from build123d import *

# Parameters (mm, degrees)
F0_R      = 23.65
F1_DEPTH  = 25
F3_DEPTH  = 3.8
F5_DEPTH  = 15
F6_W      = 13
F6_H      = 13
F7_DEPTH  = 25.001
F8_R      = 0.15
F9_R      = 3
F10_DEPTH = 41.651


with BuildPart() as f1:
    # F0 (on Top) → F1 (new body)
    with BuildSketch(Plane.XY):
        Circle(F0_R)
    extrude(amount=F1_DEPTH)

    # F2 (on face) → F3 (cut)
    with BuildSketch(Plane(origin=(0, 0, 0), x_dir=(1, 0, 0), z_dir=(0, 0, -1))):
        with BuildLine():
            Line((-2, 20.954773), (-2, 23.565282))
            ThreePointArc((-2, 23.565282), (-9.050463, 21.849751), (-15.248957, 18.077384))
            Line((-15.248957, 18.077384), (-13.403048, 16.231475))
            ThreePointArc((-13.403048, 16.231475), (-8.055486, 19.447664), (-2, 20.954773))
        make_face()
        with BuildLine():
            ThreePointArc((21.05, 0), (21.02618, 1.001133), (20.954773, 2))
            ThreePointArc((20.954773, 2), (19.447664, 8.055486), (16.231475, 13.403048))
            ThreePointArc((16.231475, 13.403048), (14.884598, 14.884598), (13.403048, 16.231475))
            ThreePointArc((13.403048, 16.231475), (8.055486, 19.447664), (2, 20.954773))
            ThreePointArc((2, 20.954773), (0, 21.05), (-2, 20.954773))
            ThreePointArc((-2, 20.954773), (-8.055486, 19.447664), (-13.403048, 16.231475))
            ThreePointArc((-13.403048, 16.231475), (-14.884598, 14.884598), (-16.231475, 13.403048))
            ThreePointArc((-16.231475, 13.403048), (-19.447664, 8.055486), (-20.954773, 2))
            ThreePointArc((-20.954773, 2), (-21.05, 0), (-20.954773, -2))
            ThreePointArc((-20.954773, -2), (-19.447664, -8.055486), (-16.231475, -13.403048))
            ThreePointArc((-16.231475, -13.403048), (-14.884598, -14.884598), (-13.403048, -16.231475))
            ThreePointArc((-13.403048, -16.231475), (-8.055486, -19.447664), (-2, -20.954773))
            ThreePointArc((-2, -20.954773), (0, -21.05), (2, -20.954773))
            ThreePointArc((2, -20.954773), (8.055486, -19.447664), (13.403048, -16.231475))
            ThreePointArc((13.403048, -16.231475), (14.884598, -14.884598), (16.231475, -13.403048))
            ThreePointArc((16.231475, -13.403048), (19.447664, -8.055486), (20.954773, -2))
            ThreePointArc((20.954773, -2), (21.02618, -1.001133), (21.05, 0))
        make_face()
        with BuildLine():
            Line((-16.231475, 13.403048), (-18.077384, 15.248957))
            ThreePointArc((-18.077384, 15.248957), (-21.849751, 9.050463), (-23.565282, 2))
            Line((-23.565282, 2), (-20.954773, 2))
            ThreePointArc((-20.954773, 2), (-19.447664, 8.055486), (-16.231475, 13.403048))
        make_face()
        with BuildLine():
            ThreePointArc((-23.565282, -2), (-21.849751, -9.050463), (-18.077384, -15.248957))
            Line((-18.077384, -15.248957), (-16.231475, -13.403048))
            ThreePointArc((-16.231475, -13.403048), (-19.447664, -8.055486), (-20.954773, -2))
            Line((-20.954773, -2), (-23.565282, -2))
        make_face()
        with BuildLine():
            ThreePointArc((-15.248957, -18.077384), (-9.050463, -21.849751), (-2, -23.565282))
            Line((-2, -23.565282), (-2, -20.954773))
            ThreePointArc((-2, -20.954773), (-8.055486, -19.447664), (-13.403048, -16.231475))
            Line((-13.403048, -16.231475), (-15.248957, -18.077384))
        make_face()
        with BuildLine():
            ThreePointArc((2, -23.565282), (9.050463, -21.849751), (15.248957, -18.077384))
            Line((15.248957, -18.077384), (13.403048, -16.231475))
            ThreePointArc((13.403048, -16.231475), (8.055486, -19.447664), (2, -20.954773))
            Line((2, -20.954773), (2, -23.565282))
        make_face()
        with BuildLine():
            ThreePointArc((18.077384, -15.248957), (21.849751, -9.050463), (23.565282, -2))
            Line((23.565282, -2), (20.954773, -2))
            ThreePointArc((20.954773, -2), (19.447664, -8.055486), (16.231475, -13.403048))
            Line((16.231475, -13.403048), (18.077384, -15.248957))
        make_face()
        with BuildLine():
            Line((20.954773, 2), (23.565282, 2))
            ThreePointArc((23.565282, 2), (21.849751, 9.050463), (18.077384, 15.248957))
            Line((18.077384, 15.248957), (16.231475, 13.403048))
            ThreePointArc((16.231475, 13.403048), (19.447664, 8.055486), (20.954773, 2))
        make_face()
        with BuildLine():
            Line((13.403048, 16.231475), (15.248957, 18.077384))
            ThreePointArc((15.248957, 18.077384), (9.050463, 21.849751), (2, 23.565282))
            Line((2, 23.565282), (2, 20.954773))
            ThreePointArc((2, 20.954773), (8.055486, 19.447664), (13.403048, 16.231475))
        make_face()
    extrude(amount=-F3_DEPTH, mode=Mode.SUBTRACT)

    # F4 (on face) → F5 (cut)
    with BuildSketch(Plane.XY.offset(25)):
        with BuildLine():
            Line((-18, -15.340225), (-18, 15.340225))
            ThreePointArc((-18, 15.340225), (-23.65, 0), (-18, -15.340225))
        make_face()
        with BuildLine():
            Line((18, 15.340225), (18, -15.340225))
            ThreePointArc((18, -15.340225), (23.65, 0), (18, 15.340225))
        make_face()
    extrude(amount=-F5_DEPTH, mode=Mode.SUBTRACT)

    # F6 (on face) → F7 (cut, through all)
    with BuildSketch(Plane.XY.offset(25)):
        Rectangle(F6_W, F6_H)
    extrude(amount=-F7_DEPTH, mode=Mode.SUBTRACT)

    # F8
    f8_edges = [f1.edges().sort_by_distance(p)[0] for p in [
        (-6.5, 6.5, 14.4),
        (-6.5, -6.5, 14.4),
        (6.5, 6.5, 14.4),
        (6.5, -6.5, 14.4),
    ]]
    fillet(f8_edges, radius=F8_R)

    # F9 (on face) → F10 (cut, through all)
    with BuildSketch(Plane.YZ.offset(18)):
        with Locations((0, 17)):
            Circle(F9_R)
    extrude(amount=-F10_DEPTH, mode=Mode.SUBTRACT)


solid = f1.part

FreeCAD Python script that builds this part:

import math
import FreeCAD as App
import Part
import Sketcher
Q = App.Units.Quantity


def edges_at(feature, points):
    """Names of the edges that pass closest to the given points."""
    edges = feature.Shape.Edges
    near = lambda p: min(range(len(edges)), key=lambda i: edges[i].distToShape(Part.Vertex(*p))[0])
    return sorted({f"Edge{near(p) + 1}" for p in points})

doc = App.newDocument("Part")
params = doc.addObject("Spreadsheet::Sheet", "Params")
for row, (alias, value) in enumerate([
    ("sketch1_diameter", "47.3 mm"),
    ("pad1_length", "25 mm"),
    ("pocket1_length", "3.8 mm"),
    ("sketch3_radius", "23.65 mm"),
    ("pocket2_length", "15 mm"),
    ("sketch4_width", "13 mm"),
    ("fillet_radius", "0.15 mm"),
    ("sketch5_diameter", "6 mm"),
], start=1):
    params.set(f"A{row}", alias)
    params.set(f"B{row}", "=" + value)
    params.setAlias(f"B{row}", alias)

body = doc.addObject("PartDesign::Body", "Body")

# Sketch on XY plane
sketch1 = body.newObject("Sketcher::SketchObject", "Sketch")
sketch1.AttachmentSupport = (doc.getObject("XY_Plane"), [""])
sketch1.MapMode = "FlatFace"
sketch1.addGeometry(Part.Circle(App.Vector(0, 0, 0), App.Vector(0, 0, 1), 24), False)
sketch1.addConstraint([
    Sketcher.Constraint("Coincident", 0, 3, -1, 1),
    Sketcher.Constraint("Diameter", 0, Q("47.3 mm")),
])
sketch1.setExpression("Constraints[1]", "Params.sketch1_diameter")
pad1 = body.newObject("PartDesign::Pad", "Pad")
pad1.Profile = sketch1
pad1.setExpression("Length", "Params.pad1_length")

# Sketch on XY plane
sketch2 = body.newObject("Sketcher::SketchObject", "Sketch001")
sketch2.AttachmentSupport = (doc.getObject("XY_Plane"), [""])
sketch2.MapMode = "FlatFace"
sketch2.addGeometry([
    Part.LineSegment(App.Vector(-2, -20.954773, 0), App.Vector(-2, -23.565282, 0)),  # 0
    Part.ArcOfCircle(Part.Circle(App.Vector(0.000002, 0.000004, 0), App.Vector(0, 0, 1), 23.650004), math.radians(-130.148895), math.radians(-94.851107)),  # 1
    Part.LineSegment(App.Vector(-15.248957, -18.077384, 0), App.Vector(-13.403048, -16.231475, 0)),  # 2
    Part.ArcOfCircle(Part.Circle(App.Vector(-0.000144, -0.000144, 0), App.Vector(0, 0, 1), 21.049796), math.radians(-140.452056), math.radians(-129.547944)),  # 3
    Part.LineSegment(App.Vector(-16.231475, -13.403048, 0), App.Vector(-18.077384, -15.248957, 0)),  # 4
    Part.ArcOfCircle(Part.Circle(App.Vector(0.000004, 0.000002, 0), App.Vector(0, 0, 1), 23.650004), math.radians(-175.148893), math.radians(-139.851105)),  # 5
    Part.LineSegment(App.Vector(-23.565282, -2, 0), App.Vector(-20.954773, -2, 0)),  # 6
    Part.ArcOfCircle(Part.Circle(App.Vector(0.00006, 0, 0), App.Vector(0, 0, 1), 21.05006), math.radians(174.548012), math.radians(185.451988)),  # 7
    Part.LineSegment(App.Vector(-20.954773, 2, 0), App.Vector(-23.565282, 2, 0)),  # 8
    Part.ArcOfCircle(Part.Circle(App.Vector(0.000004, -0.000002, 0), App.Vector(0, 0, 1), 23.650004), math.radians(139.851105), math.radians(175.148893)),  # 9
    Part.LineSegment(App.Vector(-18.077384, 15.248957, 0), App.Vector(-16.231475, 13.403048, 0)),  # 10
    Part.ArcOfCircle(Part.Circle(App.Vector(-0.000144, 0.000144, 0), App.Vector(0, 0, 1), 21.049796), math.radians(129.547944), math.radians(140.452056)),  # 11
    Part.LineSegment(App.Vector(-13.403048, 16.231475, 0), App.Vector(-15.248957, 18.077384, 0)),  # 12
    Part.ArcOfCircle(Part.Circle(App.Vector(0.000002, -0.000004, 0), App.Vector(0, 0, 1), 23.650004), math.radians(94.851107), math.radians(130.148895)),  # 13
    Part.LineSegment(App.Vector(-2, 23.565282, 0), App.Vector(-2, 20.954773, 0)),  # 14
    Part.ArcOfCircle(Part.Circle(App.Vector(0, -0.00006, 0), App.Vector(0, 0, 1), 21.05006), math.radians(84.548012), math.radians(95.451988)),  # 15
    Part.LineSegment(App.Vector(2, 20.954773, 0), App.Vector(2, 23.565282, 0)),  # 16
    Part.ArcOfCircle(Part.Circle(App.Vector(-0.000002, -0.000004, 0), App.Vector(0, 0, 1), 23.650004), math.radians(49.851105), math.radians(85.148893)),  # 17
    Part.LineSegment(App.Vector(15.248957, 18.077384, 0), App.Vector(13.403048, 16.231475, 0)),  # 18
    Part.ArcOfCircle(Part.Circle(App.Vector(0.000144, 0.000144, 0), App.Vector(0, 0, 1), 21.049796), math.radians(39.547944), math.radians(50.452056)),  # 19
    Part.LineSegment(App.Vector(16.231475, 13.403048, 0), App.Vector(18.077384, 15.248957, 0)),  # 20
    Part.ArcOfCircle(Part.Circle(App.Vector(-0.000004, -0.000002, 0), App.Vector(0, 0, 1), 23.650004), math.radians(4.851107), math.radians(40.148895)),  # 21
    Part.LineSegment(App.Vector(23.565282, 2, 0), App.Vector(20.954773, 2, 0)),  # 22
    Part.ArcOfCircle(Part.Circle(App.Vector(0.000145, 0.00001, 0), App.Vector(0, 0, 1), 21.049855), math.radians(-0.000027), math.radians(5.452014)),  # 23
    Part.ArcOfCircle(Part.Circle(App.Vector(0.000145, -0.00001, 0), App.Vector(0, 0, 1), 21.049855), math.radians(-5.452014), math.radians(0.000027)),  # 24
    Part.LineSegment(App.Vector(20.954773, -2, 0), App.Vector(23.565282, -2, 0)),  # 25
    Part.ArcOfCircle(Part.Circle(App.Vector(-0.000004, 0.000002, 0), App.Vector(0, 0, 1), 23.650004), math.radians(-40.148895), math.radians(-4.851107)),  # 26
    Part.LineSegment(App.Vector(18.077384, -15.248957, 0), App.Vector(16.231475, -13.403048, 0)),  # 27
    Part.ArcOfCircle(Part.Circle(App.Vector(0.000144, -0.000144, 0), App.Vector(0, 0, 1), 21.049796), math.radians(-50.452056), math.radians(-39.547944)),  # 28
    Part.LineSegment(App.Vector(13.403048, -16.231475, 0), App.Vector(15.248957, -18.077384, 0)),  # 29
    Part.ArcOfCircle(Part.Circle(App.Vector(-0.000002, 0.000004, 0), App.Vector(0, 0, 1), 23.650004), math.radians(-85.148893), math.radians(-49.851105)),  # 30
    Part.LineSegment(App.Vector(2, -23.565282, 0), App.Vector(2, -20.954773, 0)),  # 31
    Part.ArcOfCircle(Part.Circle(App.Vector(0, 0.00006, 0), App.Vector(0, 0, 1), 21.05006), math.radians(-95.451988), math.radians(-84.548012)),  # 32
], False)
sketch2.addConstraint([
    Sketcher.Constraint("Coincident", 0, 2, 1, 2),
    Sketcher.Constraint("Coincident", 1, 1, 2, 1),
    Sketcher.Constraint("Coincident", 2, 2, 3, 2),
    Sketcher.Constraint("Coincident", 3, 1, 4, 1),
    Sketcher.Constraint("Coincident", 4, 2, 5, 2),
    Sketcher.Constraint("Coincident", 5, 1, 6, 1),
    Sketcher.Constraint("Coincident", 6, 2, 7, 2),
    Sketcher.Constraint("Coincident", 7, 1, 8, 1),
    Sketcher.Constraint("Coincident", 8, 2, 9, 2),
    Sketcher.Constraint("Coincident", 9, 1, 10, 1),
    Sketcher.Constraint("Coincident", 10, 2, 11, 2),
    Sketcher.Constraint("Coincident", 11, 1, 12, 1),
    Sketcher.Constraint("Coincident", 12, 2, 13, 2),
    Sketcher.Constraint("Coincident", 13, 1, 14, 1),
    Sketcher.Constraint("Coincident", 14, 2, 15, 2),
    Sketcher.Constraint("Coincident", 15, 1, 16, 1),
    Sketcher.Constraint("Coincident", 16, 2, 17, 2),
    Sketcher.Constraint("Coincident", 17, 1, 18, 1),
    Sketcher.Constraint("Coincident", 18, 2, 19, 2),
    Sketcher.Constraint("Coincident", 19, 1, 20, 1),
    Sketcher.Constraint("Coincident", 20, 2, 21, 2),
    Sketcher.Constraint("Coincident", 21, 1, 22, 1),
    Sketcher.Constraint("Coincident", 22, 2, 23, 2),
    Sketcher.Constraint("Tangent", 23, 1, 24, 2),
    Sketcher.Constraint("Coincident", 24, 1, 25, 1),
    Sketcher.Constraint("Coincident", 25, 2, 26, 2),
    Sketcher.Constraint("Coincident", 26, 1, 27, 1),
    Sketcher.Constraint("Coincident", 27, 2, 28, 2),
    Sketcher.Constraint("Coincident", 28, 1, 29, 1),
    Sketcher.Constraint("Coincident", 29, 2, 30, 2),
    Sketcher.Constraint("Coincident", 30, 1, 31, 1),
    Sketcher.Constraint("Coincident", 31, 2, 32, 2),
    Sketcher.Constraint("Coincident", 32, 1, 0, 1),
    Sketcher.Constraint("Vertical", 0),
    Sketcher.Constraint("Horizontal", 6),
    Sketcher.Constraint("Horizontal", 8),
    Sketcher.Constraint("Vertical", 14),
    Sketcher.Constraint("Vertical", 16),
    Sketcher.Constraint("Horizontal", 22),
    Sketcher.Constraint("Horizontal", 25),
    Sketcher.Constraint("Vertical", 31),
    Sketcher.Constraint("Coincident", 1, 3, -1, 1),
    Sketcher.Constraint("Coincident", 5, 3, -1, 1),
    Sketcher.Constraint("Coincident", 9, 3, -1, 1),
    Sketcher.Constraint("Coincident", 13, 3, -1, 1),
    Sketcher.Constraint("Coincident", 17, 3, -1, 1),
    Sketcher.Constraint("Coincident", 21, 3, -1, 1),
    Sketcher.Constraint("Coincident", 26, 3, -1, 1),
    Sketcher.Constraint("Coincident", 30, 3, -1, 1),
    Sketcher.Constraint("Equal", 1, 5),
    Sketcher.Constraint("Equal", 5, 9),
    Sketcher.Constraint("Equal", 3, 11),
    Sketcher.Constraint("Equal", 9, 13),
    Sketcher.Constraint("Equal", 7, 15),
    Sketcher.Constraint("Equal", 13, 17),
    Sketcher.Constraint("Equal", 11, 19),
    Sketcher.Constraint("Equal", 17, 21),
    Sketcher.Constraint("Equal", 23, 24),
    Sketcher.Constraint("Equal", 21, 26),
    Sketcher.Constraint("Equal", 19, 28),
    Sketcher.Constraint("Equal", 26, 30),
    Sketcher.Constraint("Equal", 15, 32),
    Sketcher.Constraint("Symmetric", 3, 3, 19, 3, -1, 1),
    Sketcher.Constraint("Symmetric", 11, 3, 28, 3, -1, 1),
    Sketcher.Constraint("Symmetric", 15, 3, 32, 3, -1, 1),
    Sketcher.Constraint("Symmetric", 6, 2, 22, 2, -1, 1),
    Sketcher.Constraint("Symmetric", 7, 1, 24, 1, -1, 1),
    Sketcher.Constraint("Symmetric", 11, 3, 19, 3, -2),
    Sketcher.Constraint("Symmetric", 14, 2, 15, 1, -2),
    Sketcher.Constraint("Symmetric", 7, 1, 22, 2, -2),
    Sketcher.Constraint("PointOnObject", 23, 1, -1),
    Sketcher.Constraint("Parallel", 2, 4),
    Sketcher.Constraint("Perpendicular", 4, 10),
    Sketcher.Constraint("Parallel", 10, 12),
    Sketcher.Constraint("Perpendicular", 12, 18),
    Sketcher.Constraint("Parallel", 18, 20),
    Sketcher.Constraint("Perpendicular", 20, 27),
    Sketcher.Constraint("Parallel", 27, 29),
    Sketcher.Constraint("Horizontal", 12, 2, 17, 1),
    Sketcher.Constraint("Horizontal", 11, 1, 18, 2),
    Sketcher.Constraint("Horizontal", 10, 2, 19, 1),
    Sketcher.Constraint("Horizontal", 4, 2, 26, 1),
    Sketcher.Constraint("Horizontal", 2, 2, 28, 1),
    Sketcher.Constraint("Horizontal", 0, 2, 30, 1),
    Sketcher.Constraint("Vertical", 19, 3, 23, 3),
    Sketcher.Constraint("Vertical", 4, 2, 9, 1),
    Sketcher.Constraint("Vertical", 2, 2, 11, 1),
    Sketcher.Constraint("Vertical", 0, 2, 13, 1),
    Sketcher.Constraint("Equal", 25, 0),
    Sketcher.Constraint("Equal", 2, 4),
    Sketcher.Constraint("DistanceX", 0, 2, -1, 1, Q("2 mm")),
    Sketcher.Constraint("DistanceY", 5, 1, -1, 1, Q("2 mm")),
    Sketcher.Constraint("DistanceX", -1, 1, 23, 1, Q("21.05 mm")),
    Sketcher.Constraint("Radius", 7, Q("21.05006 mm")),
    Sketcher.Constraint("Radius", 1, Q("23.650004 mm")),
    Sketcher.Constraint("Radius", 3, Q("21.049796 mm")),
    Sketcher.Constraint("Radius", 23, Q("21.049855 mm")),
    Sketcher.Constraint("DistanceX", 1, 1, 28, 3, Q("15.249101 mm")),
    Sketcher.Constraint("DistanceX", 5, 1, 4, 2, Q("5.487898 mm")),
])
pocket1 = body.newObject("PartDesign::Pocket", "Pocket")
pocket1.Profile = sketch2
pocket1.setExpression("Length", "Params.pocket1_length")
pocket1.Reversed = True

# Sketch on XY plane
sketch3 = body.newObject("Sketcher::SketchObject", "Sketch002")
sketch3.AttachmentSupport = (doc.getObject("XY_Plane"), [""])
sketch3.MapMode = "FlatFace"
sketch3.AttachmentOffset = App.Placement(App.Vector(0, 0, 25), App.Rotation())
sketch3.addGeometry([
    Part.LineSegment(App.Vector(-18, -15, 0), App.Vector(-18, 15, 0)),
    Part.ArcOfCircle(Part.Circle(App.Vector(0, 0, 0), App.Vector(0, 0, 1), 24), math.radians(140), math.radians(220)),
    Part.LineSegment(App.Vector(18, 15, 0), App.Vector(18, -15, 0)),
    Part.ArcOfCircle(Part.Circle(App.Vector(0, 0, 0), App.Vector(0, 0, 1), 24), math.radians(-40), math.radians(40)),
], False)
sketch3.addConstraint([
    Sketcher.Constraint("Coincident", 0, 1, 1, 2),
    Sketcher.Constraint("Coincident", 1, 1, 0, 2),
    Sketcher.Constraint("Coincident", 2, 1, 3, 2),
    Sketcher.Constraint("Coincident", 3, 1, 2, 2),
    Sketcher.Constraint("Vertical", 0),
    Sketcher.Constraint("Vertical", 2),
    Sketcher.Constraint("Coincident", 1, 3, -1, 1),
    Sketcher.Constraint("Coincident", 3, 3, -1, 1),
    Sketcher.Constraint("Equal", 1, 3),
    Sketcher.Constraint("Horizontal", 1, 1, 2, 1),
    Sketcher.Constraint("Radius", 1, Q("23.65 mm")),
    Sketcher.Constraint("DistanceX", 0, 1, -1, 1, Q("18 mm")),
])
sketch3.setExpression("Constraints[10]", "Params.sketch3_radius")
pocket2 = body.newObject("PartDesign::Pocket", "Pocket001")
pocket2.Profile = sketch3
pocket2.setExpression("Length", "Params.pocket2_length")

# Sketch on XY plane
sketch4 = body.newObject("Sketcher::SketchObject", "Sketch003")
sketch4.AttachmentSupport = (doc.getObject("XY_Plane"), [""])
sketch4.MapMode = "FlatFace"
sketch4.AttachmentOffset = App.Placement(App.Vector(0, 0, 25), App.Rotation())
sketch4.addGeometry([
    Part.LineSegment(App.Vector(-6, 6, 0), App.Vector(-6, -6, 0)),
    Part.LineSegment(App.Vector(-6, -6, 0), App.Vector(6, -6, 0)),
    Part.LineSegment(App.Vector(6, -6, 0), App.Vector(6, 6, 0)),
    Part.LineSegment(App.Vector(6, 6, 0), App.Vector(-6, 6, 0)),
], False)
sketch4.addConstraint([
    Sketcher.Constraint("Coincident", 0, 2, 1, 1),
    Sketcher.Constraint("Coincident", 1, 2, 2, 1),
    Sketcher.Constraint("Coincident", 2, 2, 3, 1),
    Sketcher.Constraint("Coincident", 3, 2, 0, 1),
    Sketcher.Constraint("Vertical", 0),
    Sketcher.Constraint("Horizontal", 1),
    Sketcher.Constraint("Vertical", 2),
    Sketcher.Constraint("Horizontal", 3),
    Sketcher.Constraint("Symmetric", 0, 2, 2, 2, -1, 1),
    Sketcher.Constraint("Equal", 3, 0),
    Sketcher.Constraint("DistanceX", 1, 1, 1, 2, Q("13 mm")),
])
sketch4.setExpression("Constraints[10]", "Params.sketch4_width")
pocket3 = body.newObject("PartDesign::Pocket", "Pocket002")
pocket3.Profile = sketch4
pocket3.Type = "ThroughAll"
doc.recompute()

fillet = body.newObject("PartDesign::Fillet", "Fillet")
fillet.Base = (pocket3, edges_at(pocket3, [
    (-6.5, 6.5, 14.4),
    (-6.5, -6.5, 14.4),
    (6.5, 6.5, 14.4),
    (6.5, -6.5, 14.4),
]))
fillet.setExpression("Radius", "Params.fillet_radius")

# Sketch on YZ plane
sketch5 = body.newObject("Sketcher::SketchObject", "Sketch004")
sketch5.AttachmentSupport = (doc.getObject("YZ_Plane"), [""])
sketch5.MapMode = "FlatFace"
sketch5.AttachmentOffset = App.Placement(App.Vector(0, 0, 18), App.Rotation())
sketch5.addGeometry(Part.Circle(App.Vector(0, 17, 0), App.Vector(0, 0, 1), 3), False)
sketch5.addConstraint([
    Sketcher.Constraint("PointOnObject", 0, 3, -2),
    Sketcher.Constraint("Diameter", 0, Q("6 mm")),
    Sketcher.Constraint("DistanceY", -1, 1, 0, 3, Q("17 mm")),
])
sketch5.setExpression("Constraints[1]", "Params.sketch5_diameter")
pocket4 = body.newObject("PartDesign::Pocket", "Pocket003")
pocket4.Profile = sketch5
pocket4.Type = "ThroughAll"

doc.recompute()
